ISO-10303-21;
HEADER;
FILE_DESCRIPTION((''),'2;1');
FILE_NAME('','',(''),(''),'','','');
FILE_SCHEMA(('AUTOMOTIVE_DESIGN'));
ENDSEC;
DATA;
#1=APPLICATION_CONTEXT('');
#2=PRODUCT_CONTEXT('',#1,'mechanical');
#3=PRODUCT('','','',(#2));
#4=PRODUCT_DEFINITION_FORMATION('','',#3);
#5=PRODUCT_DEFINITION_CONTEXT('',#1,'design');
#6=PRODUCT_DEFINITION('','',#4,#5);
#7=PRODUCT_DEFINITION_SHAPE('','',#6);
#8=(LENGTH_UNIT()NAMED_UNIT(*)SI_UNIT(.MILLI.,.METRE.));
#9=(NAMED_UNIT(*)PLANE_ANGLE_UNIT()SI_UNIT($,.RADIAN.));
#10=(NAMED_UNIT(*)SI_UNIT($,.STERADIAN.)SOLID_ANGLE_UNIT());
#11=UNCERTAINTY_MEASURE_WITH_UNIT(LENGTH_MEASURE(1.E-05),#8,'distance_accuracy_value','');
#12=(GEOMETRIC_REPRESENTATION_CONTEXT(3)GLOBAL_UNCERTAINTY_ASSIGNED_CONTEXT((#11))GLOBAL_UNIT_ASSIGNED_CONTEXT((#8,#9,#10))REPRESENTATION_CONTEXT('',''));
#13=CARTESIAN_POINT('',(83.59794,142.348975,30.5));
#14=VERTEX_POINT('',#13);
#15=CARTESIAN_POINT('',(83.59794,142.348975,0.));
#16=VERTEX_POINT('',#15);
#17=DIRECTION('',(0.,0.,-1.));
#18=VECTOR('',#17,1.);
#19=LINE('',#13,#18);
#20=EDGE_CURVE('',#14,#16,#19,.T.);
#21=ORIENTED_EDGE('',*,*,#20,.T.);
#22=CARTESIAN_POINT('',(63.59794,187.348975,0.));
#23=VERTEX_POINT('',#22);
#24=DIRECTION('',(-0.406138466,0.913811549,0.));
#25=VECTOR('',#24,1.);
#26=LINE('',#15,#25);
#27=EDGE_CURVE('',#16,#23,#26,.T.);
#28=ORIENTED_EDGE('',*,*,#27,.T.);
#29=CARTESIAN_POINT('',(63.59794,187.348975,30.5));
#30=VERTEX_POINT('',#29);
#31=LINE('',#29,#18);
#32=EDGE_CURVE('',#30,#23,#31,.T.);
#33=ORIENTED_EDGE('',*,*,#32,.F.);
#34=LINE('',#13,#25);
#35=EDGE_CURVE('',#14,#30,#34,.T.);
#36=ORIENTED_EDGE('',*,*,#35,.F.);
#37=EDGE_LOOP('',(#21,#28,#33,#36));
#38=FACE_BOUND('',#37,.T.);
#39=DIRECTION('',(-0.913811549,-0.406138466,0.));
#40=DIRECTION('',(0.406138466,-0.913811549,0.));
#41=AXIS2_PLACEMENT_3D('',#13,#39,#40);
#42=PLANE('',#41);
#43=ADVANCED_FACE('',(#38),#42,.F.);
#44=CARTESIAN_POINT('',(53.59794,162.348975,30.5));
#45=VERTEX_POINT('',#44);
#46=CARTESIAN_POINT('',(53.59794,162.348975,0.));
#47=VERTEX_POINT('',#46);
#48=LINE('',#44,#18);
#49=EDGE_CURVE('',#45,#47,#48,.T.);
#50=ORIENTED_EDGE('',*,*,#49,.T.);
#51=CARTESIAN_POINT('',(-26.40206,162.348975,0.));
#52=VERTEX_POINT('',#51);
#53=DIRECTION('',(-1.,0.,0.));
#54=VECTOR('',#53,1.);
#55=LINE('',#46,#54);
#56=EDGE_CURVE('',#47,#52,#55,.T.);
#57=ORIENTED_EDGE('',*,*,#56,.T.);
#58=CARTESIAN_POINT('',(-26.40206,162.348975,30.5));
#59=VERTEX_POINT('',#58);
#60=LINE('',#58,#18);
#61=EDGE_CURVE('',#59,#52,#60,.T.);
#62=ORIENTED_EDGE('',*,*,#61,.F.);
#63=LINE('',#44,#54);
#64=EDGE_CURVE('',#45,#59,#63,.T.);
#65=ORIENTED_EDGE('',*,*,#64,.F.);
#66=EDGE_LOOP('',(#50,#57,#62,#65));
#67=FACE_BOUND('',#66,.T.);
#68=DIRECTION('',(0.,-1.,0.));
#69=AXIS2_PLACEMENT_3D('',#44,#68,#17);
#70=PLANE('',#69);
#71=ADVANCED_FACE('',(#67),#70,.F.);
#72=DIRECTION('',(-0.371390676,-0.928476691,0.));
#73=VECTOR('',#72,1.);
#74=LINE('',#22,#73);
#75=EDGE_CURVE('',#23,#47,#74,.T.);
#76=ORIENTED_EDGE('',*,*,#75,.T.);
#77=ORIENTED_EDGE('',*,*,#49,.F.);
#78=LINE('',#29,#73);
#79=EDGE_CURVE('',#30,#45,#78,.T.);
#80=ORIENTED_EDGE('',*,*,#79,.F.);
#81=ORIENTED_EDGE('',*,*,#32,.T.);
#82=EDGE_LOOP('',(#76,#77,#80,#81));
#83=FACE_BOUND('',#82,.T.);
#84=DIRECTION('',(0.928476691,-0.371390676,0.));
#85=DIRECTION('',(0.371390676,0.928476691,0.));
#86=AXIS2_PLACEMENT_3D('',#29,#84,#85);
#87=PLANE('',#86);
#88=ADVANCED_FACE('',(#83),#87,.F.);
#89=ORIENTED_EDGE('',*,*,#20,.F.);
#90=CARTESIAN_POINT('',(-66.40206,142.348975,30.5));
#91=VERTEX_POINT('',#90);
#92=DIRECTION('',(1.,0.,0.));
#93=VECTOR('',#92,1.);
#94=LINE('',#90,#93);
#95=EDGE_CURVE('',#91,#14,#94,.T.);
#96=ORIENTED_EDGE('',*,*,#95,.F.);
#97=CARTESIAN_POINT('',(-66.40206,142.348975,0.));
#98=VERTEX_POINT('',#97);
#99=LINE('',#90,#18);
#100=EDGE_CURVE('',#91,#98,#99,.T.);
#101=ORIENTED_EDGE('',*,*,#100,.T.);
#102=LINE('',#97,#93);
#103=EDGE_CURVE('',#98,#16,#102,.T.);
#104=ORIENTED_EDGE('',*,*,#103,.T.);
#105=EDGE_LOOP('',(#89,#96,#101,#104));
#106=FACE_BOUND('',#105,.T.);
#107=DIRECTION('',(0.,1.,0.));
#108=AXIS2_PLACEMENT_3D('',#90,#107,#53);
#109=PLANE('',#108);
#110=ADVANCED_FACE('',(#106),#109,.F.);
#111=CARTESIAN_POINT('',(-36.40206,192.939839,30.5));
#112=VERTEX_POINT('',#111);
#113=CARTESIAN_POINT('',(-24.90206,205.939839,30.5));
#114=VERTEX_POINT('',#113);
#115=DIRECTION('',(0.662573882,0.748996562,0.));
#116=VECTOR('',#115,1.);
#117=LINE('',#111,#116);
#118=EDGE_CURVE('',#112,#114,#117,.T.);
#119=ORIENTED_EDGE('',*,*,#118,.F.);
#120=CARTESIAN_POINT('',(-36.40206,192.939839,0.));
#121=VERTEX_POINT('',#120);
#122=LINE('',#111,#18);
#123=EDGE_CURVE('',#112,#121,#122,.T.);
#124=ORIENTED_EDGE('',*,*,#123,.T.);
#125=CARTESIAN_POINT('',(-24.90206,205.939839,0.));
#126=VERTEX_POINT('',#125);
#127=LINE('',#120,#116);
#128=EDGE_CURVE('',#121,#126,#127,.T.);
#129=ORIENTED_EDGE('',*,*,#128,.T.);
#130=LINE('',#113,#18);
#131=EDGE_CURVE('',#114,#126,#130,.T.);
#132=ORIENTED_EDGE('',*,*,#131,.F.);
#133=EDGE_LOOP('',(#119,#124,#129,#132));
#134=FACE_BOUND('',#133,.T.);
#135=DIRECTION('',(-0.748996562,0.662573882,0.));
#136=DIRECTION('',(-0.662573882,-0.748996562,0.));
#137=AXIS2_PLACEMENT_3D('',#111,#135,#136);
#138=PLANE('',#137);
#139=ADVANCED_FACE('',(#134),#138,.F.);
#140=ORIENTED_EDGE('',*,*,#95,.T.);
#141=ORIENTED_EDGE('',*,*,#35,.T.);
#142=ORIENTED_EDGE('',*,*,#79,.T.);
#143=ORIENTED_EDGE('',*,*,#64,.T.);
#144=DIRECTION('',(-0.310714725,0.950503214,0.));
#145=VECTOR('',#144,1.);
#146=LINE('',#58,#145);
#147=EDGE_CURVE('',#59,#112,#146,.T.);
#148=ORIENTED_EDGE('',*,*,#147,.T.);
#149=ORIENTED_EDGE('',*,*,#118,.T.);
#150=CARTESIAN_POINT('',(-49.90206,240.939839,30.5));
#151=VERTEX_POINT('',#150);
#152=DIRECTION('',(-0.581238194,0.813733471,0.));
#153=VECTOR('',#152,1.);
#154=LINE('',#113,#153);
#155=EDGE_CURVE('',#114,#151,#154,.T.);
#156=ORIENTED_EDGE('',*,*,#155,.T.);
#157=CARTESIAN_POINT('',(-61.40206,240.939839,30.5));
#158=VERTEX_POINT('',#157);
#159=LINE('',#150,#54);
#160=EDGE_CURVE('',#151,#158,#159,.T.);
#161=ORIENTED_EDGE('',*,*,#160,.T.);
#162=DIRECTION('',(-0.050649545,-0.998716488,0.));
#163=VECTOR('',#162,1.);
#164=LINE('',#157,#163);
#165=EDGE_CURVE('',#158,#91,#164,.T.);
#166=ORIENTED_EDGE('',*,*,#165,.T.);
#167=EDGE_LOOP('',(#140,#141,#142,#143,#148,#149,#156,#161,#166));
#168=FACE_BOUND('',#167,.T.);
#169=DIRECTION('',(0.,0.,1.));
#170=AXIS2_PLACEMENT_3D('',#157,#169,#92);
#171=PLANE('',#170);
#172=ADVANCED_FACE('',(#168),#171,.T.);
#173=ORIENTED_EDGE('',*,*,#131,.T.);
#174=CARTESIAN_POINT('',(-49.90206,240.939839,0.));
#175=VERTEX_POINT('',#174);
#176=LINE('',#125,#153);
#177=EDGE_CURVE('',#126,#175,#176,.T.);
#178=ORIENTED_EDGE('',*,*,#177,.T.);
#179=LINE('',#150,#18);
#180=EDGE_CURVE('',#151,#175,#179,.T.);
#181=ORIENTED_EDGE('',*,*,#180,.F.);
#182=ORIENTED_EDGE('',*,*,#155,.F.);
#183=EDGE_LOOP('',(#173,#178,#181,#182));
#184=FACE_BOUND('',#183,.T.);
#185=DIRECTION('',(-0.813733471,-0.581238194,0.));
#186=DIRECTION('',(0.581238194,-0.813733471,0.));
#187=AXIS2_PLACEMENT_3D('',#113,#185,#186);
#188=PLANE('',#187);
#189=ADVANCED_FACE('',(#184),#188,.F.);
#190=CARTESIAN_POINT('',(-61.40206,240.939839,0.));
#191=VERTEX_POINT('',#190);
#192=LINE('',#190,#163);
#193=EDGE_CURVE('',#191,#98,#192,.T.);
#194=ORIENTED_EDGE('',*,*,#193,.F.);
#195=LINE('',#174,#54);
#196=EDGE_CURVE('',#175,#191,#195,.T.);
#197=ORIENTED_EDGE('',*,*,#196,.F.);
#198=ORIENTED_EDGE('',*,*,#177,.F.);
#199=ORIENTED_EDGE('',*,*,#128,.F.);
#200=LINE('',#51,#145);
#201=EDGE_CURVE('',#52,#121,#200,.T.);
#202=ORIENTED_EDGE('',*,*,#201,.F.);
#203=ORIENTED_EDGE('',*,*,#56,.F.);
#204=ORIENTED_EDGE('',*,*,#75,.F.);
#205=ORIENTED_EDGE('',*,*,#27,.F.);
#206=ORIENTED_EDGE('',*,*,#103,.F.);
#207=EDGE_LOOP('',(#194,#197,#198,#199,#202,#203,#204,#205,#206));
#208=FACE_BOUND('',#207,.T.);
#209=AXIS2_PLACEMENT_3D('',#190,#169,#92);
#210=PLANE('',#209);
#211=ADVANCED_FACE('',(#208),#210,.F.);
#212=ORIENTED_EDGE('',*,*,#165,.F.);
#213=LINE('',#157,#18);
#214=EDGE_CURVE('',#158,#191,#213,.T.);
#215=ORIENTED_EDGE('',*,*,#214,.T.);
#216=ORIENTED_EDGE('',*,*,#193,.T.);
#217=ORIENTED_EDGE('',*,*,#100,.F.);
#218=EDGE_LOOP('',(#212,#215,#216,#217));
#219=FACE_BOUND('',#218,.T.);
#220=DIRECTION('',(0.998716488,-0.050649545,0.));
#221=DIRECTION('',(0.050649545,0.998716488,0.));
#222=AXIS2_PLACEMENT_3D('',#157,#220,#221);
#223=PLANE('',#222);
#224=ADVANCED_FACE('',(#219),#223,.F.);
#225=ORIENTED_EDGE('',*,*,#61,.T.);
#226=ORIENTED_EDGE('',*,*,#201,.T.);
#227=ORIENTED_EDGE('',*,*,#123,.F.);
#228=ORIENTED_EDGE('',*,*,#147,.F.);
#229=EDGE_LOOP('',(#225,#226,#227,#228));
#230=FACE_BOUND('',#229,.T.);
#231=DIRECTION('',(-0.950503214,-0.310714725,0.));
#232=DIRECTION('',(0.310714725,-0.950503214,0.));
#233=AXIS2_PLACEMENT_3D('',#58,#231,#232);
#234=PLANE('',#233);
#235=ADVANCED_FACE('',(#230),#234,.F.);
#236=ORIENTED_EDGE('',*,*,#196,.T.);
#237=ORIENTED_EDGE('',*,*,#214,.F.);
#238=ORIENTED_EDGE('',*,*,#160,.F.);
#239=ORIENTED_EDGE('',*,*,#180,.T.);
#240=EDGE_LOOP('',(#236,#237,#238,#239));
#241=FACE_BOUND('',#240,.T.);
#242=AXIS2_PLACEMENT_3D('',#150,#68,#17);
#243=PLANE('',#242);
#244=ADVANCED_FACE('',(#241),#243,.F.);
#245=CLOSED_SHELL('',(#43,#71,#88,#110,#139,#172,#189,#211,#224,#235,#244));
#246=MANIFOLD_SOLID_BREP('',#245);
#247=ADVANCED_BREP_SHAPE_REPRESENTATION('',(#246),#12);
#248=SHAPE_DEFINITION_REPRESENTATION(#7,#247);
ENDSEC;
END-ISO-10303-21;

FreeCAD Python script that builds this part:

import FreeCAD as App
import Part
import Sketcher
from FreeCAD import Vector


def add_polygon(sketch, points):
    """Adds a closed chain of lines whose ends are joined by coincident constraints."""
    first, n = sketch.GeometryCount, len(points)
    for a, b in zip(points, points[1:] + points[:1]):
        sketch.addGeometry(Part.LineSegment(App.Vector(*a, 0), App.Vector(*b, 0)), False)
    for i in range(n):
        sketch.addConstraint(Sketcher.Constraint("Coincident", first + i, 2, first + (i + 1) % n, 1))

doc = App.newDocument("Part")
body = doc.addObject("PartDesign::Body", "Body")

sketch1 = body.newObject("Sketcher::SketchObject", "Sketch")
sketch1.AttachmentSupport = (doc.getObject("XY_Plane"), [""])
sketch1.MapMode = "FlatFace"
add_polygon(sketch1, [(-61, 241), (-66, 142), (84, 142), (64, 187), (54, 162), (-26, 162), (-36, 193), (-25, 206), (-50, 241)])
sketch1.addConstraint([
    Sketcher.Constraint("Horizontal", 1),
    Sketcher.Constraint("Horizontal", 4),
    Sketcher.Constraint("Horizontal", 8),
    Sketcher.Constraint("DistanceX", 1, 1, 1, 2, 150.0),
    Sketcher.Constraint("DistanceX", 4, 2, 4, 1, 80.0),
    Sketcher.Constraint("DistanceX", 8, 2, 8, 1, 11.5),
    Sketcher.Constraint("DistanceX", 2, 2, 1, 2, 20.0),
    Sketcher.Constraint("DistanceY", 1, 2, 2, 2, 45.0),
    Sketcher.Constraint("DistanceX", 3, 2, 2, 2, 10.0),
    Sketcher.Constraint("DistanceY", 3, 2, 2, 2, 25.0),
    Sketcher.Constraint("DistanceX", 5, 2, 4, 2, 10.0),
    Sketcher.Constraint("DistanceY", 5, 2, 6, 2, 13.0),
    Sketcher.Constraint("DistanceX", 7, 2, 6, 2, 25.0),
    Sketcher.Constraint("DistanceY", 6, 2, 7, 2, 35.0),
    Sketcher.Constraint("DistanceX", 8, 2, 5, 2, 25.0),
    Sketcher.Constraint("Distance", 0, 98.71757),
    Sketcher.Constraint("DistanceX", 0, 2, -1, 1, 66.40206),
    Sketcher.Constraint("DistanceY", -1, 1, 5, 2, 192.939839),
])
pad1 = body.newObject("PartDesign::Pad", "Pad")
pad1.Profile = sketch1
pad1.Length = 30.5

doc.recompute()
